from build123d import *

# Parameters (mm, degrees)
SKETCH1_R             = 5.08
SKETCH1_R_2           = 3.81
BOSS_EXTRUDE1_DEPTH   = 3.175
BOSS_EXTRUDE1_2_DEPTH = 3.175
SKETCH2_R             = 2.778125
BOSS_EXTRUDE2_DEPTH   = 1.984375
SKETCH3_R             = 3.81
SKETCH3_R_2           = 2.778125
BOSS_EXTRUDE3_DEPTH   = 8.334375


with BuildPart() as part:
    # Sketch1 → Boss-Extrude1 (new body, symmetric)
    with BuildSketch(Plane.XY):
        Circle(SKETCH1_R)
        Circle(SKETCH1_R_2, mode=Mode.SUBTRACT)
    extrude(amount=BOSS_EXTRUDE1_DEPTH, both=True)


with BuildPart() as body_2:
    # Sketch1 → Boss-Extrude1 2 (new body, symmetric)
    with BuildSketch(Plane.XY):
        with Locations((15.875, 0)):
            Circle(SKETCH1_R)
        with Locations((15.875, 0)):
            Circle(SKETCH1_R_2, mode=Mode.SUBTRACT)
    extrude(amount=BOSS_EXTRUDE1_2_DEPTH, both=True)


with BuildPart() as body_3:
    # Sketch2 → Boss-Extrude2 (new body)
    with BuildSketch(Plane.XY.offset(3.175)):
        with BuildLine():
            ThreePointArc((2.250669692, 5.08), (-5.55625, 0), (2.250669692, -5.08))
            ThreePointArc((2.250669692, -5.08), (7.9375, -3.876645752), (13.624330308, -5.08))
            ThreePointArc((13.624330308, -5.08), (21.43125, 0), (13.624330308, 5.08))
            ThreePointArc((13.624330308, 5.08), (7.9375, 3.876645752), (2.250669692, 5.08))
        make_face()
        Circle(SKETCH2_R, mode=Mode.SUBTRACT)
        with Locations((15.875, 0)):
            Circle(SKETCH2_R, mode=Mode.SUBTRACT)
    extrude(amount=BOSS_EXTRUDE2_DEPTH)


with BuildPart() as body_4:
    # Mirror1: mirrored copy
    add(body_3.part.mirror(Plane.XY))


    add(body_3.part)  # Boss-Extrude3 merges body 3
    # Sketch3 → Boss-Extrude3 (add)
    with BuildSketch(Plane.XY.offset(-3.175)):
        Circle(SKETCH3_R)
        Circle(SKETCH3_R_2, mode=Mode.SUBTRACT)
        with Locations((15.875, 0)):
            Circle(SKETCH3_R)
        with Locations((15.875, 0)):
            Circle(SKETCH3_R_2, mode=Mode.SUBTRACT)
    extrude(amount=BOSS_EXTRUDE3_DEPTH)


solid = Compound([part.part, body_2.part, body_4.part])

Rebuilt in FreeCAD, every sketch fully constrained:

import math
import FreeCAD as App
import Part
import Sketcher
from FreeCAD import Vector
Q = App.Units.Quantity

doc = App.newDocument("Part")
body = doc.addObject("PartDesign::Body", "Body")

sketch1 = body.newObject("Sketcher::SketchObject", "Sketch")
sketch1.AttachmentSupport = (doc.getObject("XY_Plane"), [""])
sketch1.MapMode = "FlatFace"
sketch1.addGeometry(Part.Circle(Vector(0, 0, 0), Vector(0, 0, 1), 5.1), False)
sketch1.addGeometry(Part.Circle(Vector(0, 0, 0), Vector(0, 0, 1), 3.8), False)
sketch1.addConstraint(Sketcher.Constraint("Coincident", 0, 3, -1, 1))
sketch1.addConstraint(Sketcher.Constraint("Coincident", 1, 3, -1, 1))
sketch1.addConstraint(Sketcher.Constraint("Diameter", 0, Q("0.4 in")))
sketch1.addConstraint(Sketcher.Constraint("Diameter", 1, Q("0.3 in")))
pad1 = body.newObject("PartDesign::Pad", "Pad")
pad1.Profile = sketch1
pad1.Length = Q("0.25 in")
pad1.Midplane = True
body2 = doc.addObject("PartDesign::Body", "Body001")

sketch2 = body2.newObject("Sketcher::SketchObject", "Sketch001")
sketch2.AttachmentSupport = (doc.getObject("XY_Plane001"), [""])
sketch2.MapMode = "FlatFace"
sketch2.addGeometry(Part.Circle(Vector(15.9, 0, 0), Vector(0, 0, 1), 5.1), False)
sketch2.addGeometry(Part.Circle(Vector(15.9, 0, 0), Vector(0, 0, 1), 3.8), False)
sketch2.addConstraint(Sketcher.Constraint("Coincident", 1, 3, 0, 3))
sketch2.addConstraint(Sketcher.Constraint("PointOnObject", 0, 3, -1))
sketch2.addConstraint(Sketcher.Constraint("Diameter", 0, Q("0.4 in")))
sketch2.addConstraint(Sketcher.Constraint("Diameter", 1, Q("0.3 in")))
sketch2.addConstraint(Sketcher.Constraint("DistanceX", -1, 1, 0, 3, Q("0.625 in")))
pad2 = body2.newObject("PartDesign::Pad", "Pad001")
pad2.Profile = sketch2
pad2.Length = Q("0.25 in")
pad2.Midplane = True
body3 = doc.addObject("PartDesign::Body", "Body002")

sketch3 = body3.newObject("Sketcher::SketchObject", "Sketch002")
sketch3.AttachmentSupport = (doc.getObject("XY_Plane002"), [""])
sketch3.MapMode = "FlatFace"
sketch3.AttachmentOffset = App.Placement(Vector(0, 0, 0.125 * 25.4), App.Rotation())
sketch3.addGeometry(Part.ArcOfCircle(Part.Circle(Vector(0, 0, 0), Vector(0, 0, 1), 5.6), math.radians(66), math.radians(294)), False)
sketch3.addGeometry(Part.ArcOfCircle(Part.Circle(Vector(7.9, -17.9, 0), Vector(0, 0, 1), 14), math.radians(66), math.radians(114)), False)
sketch3.addGeometry(Part.ArcOfCircle(Part.Circle(Vector(15.9, 0, 0), Vector(0, 0, 1), 5.6), math.radians(-114), math.radians(114)), False)
sketch3.addGeometry(Part.ArcOfCircle(Part.Circle(Vector(7.9, 17.9, 0), Vector(0, 0, 1), 14), math.radians(-114), math.radians(-66)), False)
sketch3.addGeometry(Part.Circle(Vector(0, 0, 0), Vector(0, 0, 1), 2.8), False)
sketch3.addGeometry(Part.Circle(Vector(15.9, 0, 0), Vector(0, 0, 1), 2.8), False)
sketch3.addConstraint(Sketcher.Constraint("Tangent", 0, 2, 1, 2))
sketch3.addConstraint(Sketcher.Constraint("Tangent", 1, 1, 2, 1))
sketch3.addConstraint(Sketcher.Constraint("Tangent", 2, 2, 3, 2))
sketch3.addConstraint(Sketcher.Constraint("Tangent", 3, 1, 0, 1))
sketch3.addConstraint(Sketcher.Constraint("Coincident", 0, 3, -1, 1))
sketch3.addConstraint(Sketcher.Constraint("Coincident", 4, 3, -1, 1))
sketch3.addConstraint(Sketcher.Constraint("Coincident", 5, 3, 2, 3))
sketch3.addConstraint(Sketcher.Constraint("Equal", 0, 2))
sketch3.addConstraint(Sketcher.Constraint("Equal", 1, 3))
sketch3.addConstraint(Sketcher.Constraint("Equal", 4, 5))
sketch3.addConstraint(Sketcher.Constraint("PointOnObject", 2, 3, -1))
sketch3.addConstraint(Sketcher.Constraint("Diameter", 4, Q("0.21875 in")))
sketch3.addConstraint(Sketcher.Constraint("Radius", 0, Q("0.21875 in")))
sketch3.addConstraint(Sketcher.Constraint("DistanceY", 0, 2, -1, 1, Q("0.2 in")))
sketch3.addConstraint(Sketcher.Constraint("DistanceX", -1, 1, 1, 3, Q("0.3125 in")))
pad3 = body3.newObject("PartDesign::Pad", "Pad002")
pad3.Profile = sketch3
pad3.Length = Q("0.078125 in")
body4 = doc.addObject("PartDesign::Body", "Body003")
body4.AllowCompound = True
doc.recompute()

mirroring = doc.addObject("Part::Mirroring", "Mirroring")
mirroring.Source = body3
mirroring.Base = Vector(0, 0, 0)
mirroring.Normal = Vector(0, 0, 1)
body4.BaseFeature = mirroring
doc.recompute()

boolean = body4.newObject("PartDesign::Boolean", "Boolean")
boolean.Type = "Fuse"
boolean.addObjects([body3])

sketch4 = body4.newObject("Sketcher::SketchObject", "Sketch003")
sketch4.AttachmentSupport = (doc.getObject("XY_Plane003"), [""])
sketch4.MapMode = "FlatFace"
sketch4.AttachmentOffset = App.Placement(Vector(0, 0, -0.125 * 25.4), App.Rotation())
sketch4.addGeometry(Part.Circle(Vector(0, 0, 0), Vector(0, 0, 1), 3.8), False)
sketch4.addGeometry(Part.Circle(Vector(0, 0, 0), Vector(0, 0, 1), 2.8), False)
sketch4.addGeometry(Part.Circle(Vector(15.9, 0, 0), Vector(0, 0, 1), 3.8), False)
sketch4.addGeometry(Part.Circle(Vector(15.9, 0, 0), Vector(0, 0, 1), 2.8), False)
sketch4.addConstraint(Sketcher.Constraint("Coincident", 0, 3, -1, 1))
sketch4.addConstraint(Sketcher.Constraint("Coincident", 1, 3, -1, 1))
sketch4.addConstraint(Sketcher.Constraint("Coincident", 3, 3, 2, 3))
sketch4.addConstraint(Sketcher.Constraint("Equal", 0, 2))
sketch4.addConstraint(Sketcher.Constraint("Equal", 1, 3))
sketch4.addConstraint(Sketcher.Constraint("PointOnObject", 2, 3, -1))
sketch4.addConstraint(Sketcher.Constraint("Diameter", 0, Q("0.3 in")))
sketch4.addConstraint(Sketcher.Constraint("Diameter", 1, Q("0.21875 in")))
sketch4.addConstraint(Sketcher.Constraint("DistanceX", -1, 1, 2, 3, Q("0.625 in")))
pad4 = body4.newObject("PartDesign::Pad", "Pad003")
pad4.Profile = sketch4
pad4.Length = Q("0.328125 in")
mirroring.Visibility = False

doc.recompute()
